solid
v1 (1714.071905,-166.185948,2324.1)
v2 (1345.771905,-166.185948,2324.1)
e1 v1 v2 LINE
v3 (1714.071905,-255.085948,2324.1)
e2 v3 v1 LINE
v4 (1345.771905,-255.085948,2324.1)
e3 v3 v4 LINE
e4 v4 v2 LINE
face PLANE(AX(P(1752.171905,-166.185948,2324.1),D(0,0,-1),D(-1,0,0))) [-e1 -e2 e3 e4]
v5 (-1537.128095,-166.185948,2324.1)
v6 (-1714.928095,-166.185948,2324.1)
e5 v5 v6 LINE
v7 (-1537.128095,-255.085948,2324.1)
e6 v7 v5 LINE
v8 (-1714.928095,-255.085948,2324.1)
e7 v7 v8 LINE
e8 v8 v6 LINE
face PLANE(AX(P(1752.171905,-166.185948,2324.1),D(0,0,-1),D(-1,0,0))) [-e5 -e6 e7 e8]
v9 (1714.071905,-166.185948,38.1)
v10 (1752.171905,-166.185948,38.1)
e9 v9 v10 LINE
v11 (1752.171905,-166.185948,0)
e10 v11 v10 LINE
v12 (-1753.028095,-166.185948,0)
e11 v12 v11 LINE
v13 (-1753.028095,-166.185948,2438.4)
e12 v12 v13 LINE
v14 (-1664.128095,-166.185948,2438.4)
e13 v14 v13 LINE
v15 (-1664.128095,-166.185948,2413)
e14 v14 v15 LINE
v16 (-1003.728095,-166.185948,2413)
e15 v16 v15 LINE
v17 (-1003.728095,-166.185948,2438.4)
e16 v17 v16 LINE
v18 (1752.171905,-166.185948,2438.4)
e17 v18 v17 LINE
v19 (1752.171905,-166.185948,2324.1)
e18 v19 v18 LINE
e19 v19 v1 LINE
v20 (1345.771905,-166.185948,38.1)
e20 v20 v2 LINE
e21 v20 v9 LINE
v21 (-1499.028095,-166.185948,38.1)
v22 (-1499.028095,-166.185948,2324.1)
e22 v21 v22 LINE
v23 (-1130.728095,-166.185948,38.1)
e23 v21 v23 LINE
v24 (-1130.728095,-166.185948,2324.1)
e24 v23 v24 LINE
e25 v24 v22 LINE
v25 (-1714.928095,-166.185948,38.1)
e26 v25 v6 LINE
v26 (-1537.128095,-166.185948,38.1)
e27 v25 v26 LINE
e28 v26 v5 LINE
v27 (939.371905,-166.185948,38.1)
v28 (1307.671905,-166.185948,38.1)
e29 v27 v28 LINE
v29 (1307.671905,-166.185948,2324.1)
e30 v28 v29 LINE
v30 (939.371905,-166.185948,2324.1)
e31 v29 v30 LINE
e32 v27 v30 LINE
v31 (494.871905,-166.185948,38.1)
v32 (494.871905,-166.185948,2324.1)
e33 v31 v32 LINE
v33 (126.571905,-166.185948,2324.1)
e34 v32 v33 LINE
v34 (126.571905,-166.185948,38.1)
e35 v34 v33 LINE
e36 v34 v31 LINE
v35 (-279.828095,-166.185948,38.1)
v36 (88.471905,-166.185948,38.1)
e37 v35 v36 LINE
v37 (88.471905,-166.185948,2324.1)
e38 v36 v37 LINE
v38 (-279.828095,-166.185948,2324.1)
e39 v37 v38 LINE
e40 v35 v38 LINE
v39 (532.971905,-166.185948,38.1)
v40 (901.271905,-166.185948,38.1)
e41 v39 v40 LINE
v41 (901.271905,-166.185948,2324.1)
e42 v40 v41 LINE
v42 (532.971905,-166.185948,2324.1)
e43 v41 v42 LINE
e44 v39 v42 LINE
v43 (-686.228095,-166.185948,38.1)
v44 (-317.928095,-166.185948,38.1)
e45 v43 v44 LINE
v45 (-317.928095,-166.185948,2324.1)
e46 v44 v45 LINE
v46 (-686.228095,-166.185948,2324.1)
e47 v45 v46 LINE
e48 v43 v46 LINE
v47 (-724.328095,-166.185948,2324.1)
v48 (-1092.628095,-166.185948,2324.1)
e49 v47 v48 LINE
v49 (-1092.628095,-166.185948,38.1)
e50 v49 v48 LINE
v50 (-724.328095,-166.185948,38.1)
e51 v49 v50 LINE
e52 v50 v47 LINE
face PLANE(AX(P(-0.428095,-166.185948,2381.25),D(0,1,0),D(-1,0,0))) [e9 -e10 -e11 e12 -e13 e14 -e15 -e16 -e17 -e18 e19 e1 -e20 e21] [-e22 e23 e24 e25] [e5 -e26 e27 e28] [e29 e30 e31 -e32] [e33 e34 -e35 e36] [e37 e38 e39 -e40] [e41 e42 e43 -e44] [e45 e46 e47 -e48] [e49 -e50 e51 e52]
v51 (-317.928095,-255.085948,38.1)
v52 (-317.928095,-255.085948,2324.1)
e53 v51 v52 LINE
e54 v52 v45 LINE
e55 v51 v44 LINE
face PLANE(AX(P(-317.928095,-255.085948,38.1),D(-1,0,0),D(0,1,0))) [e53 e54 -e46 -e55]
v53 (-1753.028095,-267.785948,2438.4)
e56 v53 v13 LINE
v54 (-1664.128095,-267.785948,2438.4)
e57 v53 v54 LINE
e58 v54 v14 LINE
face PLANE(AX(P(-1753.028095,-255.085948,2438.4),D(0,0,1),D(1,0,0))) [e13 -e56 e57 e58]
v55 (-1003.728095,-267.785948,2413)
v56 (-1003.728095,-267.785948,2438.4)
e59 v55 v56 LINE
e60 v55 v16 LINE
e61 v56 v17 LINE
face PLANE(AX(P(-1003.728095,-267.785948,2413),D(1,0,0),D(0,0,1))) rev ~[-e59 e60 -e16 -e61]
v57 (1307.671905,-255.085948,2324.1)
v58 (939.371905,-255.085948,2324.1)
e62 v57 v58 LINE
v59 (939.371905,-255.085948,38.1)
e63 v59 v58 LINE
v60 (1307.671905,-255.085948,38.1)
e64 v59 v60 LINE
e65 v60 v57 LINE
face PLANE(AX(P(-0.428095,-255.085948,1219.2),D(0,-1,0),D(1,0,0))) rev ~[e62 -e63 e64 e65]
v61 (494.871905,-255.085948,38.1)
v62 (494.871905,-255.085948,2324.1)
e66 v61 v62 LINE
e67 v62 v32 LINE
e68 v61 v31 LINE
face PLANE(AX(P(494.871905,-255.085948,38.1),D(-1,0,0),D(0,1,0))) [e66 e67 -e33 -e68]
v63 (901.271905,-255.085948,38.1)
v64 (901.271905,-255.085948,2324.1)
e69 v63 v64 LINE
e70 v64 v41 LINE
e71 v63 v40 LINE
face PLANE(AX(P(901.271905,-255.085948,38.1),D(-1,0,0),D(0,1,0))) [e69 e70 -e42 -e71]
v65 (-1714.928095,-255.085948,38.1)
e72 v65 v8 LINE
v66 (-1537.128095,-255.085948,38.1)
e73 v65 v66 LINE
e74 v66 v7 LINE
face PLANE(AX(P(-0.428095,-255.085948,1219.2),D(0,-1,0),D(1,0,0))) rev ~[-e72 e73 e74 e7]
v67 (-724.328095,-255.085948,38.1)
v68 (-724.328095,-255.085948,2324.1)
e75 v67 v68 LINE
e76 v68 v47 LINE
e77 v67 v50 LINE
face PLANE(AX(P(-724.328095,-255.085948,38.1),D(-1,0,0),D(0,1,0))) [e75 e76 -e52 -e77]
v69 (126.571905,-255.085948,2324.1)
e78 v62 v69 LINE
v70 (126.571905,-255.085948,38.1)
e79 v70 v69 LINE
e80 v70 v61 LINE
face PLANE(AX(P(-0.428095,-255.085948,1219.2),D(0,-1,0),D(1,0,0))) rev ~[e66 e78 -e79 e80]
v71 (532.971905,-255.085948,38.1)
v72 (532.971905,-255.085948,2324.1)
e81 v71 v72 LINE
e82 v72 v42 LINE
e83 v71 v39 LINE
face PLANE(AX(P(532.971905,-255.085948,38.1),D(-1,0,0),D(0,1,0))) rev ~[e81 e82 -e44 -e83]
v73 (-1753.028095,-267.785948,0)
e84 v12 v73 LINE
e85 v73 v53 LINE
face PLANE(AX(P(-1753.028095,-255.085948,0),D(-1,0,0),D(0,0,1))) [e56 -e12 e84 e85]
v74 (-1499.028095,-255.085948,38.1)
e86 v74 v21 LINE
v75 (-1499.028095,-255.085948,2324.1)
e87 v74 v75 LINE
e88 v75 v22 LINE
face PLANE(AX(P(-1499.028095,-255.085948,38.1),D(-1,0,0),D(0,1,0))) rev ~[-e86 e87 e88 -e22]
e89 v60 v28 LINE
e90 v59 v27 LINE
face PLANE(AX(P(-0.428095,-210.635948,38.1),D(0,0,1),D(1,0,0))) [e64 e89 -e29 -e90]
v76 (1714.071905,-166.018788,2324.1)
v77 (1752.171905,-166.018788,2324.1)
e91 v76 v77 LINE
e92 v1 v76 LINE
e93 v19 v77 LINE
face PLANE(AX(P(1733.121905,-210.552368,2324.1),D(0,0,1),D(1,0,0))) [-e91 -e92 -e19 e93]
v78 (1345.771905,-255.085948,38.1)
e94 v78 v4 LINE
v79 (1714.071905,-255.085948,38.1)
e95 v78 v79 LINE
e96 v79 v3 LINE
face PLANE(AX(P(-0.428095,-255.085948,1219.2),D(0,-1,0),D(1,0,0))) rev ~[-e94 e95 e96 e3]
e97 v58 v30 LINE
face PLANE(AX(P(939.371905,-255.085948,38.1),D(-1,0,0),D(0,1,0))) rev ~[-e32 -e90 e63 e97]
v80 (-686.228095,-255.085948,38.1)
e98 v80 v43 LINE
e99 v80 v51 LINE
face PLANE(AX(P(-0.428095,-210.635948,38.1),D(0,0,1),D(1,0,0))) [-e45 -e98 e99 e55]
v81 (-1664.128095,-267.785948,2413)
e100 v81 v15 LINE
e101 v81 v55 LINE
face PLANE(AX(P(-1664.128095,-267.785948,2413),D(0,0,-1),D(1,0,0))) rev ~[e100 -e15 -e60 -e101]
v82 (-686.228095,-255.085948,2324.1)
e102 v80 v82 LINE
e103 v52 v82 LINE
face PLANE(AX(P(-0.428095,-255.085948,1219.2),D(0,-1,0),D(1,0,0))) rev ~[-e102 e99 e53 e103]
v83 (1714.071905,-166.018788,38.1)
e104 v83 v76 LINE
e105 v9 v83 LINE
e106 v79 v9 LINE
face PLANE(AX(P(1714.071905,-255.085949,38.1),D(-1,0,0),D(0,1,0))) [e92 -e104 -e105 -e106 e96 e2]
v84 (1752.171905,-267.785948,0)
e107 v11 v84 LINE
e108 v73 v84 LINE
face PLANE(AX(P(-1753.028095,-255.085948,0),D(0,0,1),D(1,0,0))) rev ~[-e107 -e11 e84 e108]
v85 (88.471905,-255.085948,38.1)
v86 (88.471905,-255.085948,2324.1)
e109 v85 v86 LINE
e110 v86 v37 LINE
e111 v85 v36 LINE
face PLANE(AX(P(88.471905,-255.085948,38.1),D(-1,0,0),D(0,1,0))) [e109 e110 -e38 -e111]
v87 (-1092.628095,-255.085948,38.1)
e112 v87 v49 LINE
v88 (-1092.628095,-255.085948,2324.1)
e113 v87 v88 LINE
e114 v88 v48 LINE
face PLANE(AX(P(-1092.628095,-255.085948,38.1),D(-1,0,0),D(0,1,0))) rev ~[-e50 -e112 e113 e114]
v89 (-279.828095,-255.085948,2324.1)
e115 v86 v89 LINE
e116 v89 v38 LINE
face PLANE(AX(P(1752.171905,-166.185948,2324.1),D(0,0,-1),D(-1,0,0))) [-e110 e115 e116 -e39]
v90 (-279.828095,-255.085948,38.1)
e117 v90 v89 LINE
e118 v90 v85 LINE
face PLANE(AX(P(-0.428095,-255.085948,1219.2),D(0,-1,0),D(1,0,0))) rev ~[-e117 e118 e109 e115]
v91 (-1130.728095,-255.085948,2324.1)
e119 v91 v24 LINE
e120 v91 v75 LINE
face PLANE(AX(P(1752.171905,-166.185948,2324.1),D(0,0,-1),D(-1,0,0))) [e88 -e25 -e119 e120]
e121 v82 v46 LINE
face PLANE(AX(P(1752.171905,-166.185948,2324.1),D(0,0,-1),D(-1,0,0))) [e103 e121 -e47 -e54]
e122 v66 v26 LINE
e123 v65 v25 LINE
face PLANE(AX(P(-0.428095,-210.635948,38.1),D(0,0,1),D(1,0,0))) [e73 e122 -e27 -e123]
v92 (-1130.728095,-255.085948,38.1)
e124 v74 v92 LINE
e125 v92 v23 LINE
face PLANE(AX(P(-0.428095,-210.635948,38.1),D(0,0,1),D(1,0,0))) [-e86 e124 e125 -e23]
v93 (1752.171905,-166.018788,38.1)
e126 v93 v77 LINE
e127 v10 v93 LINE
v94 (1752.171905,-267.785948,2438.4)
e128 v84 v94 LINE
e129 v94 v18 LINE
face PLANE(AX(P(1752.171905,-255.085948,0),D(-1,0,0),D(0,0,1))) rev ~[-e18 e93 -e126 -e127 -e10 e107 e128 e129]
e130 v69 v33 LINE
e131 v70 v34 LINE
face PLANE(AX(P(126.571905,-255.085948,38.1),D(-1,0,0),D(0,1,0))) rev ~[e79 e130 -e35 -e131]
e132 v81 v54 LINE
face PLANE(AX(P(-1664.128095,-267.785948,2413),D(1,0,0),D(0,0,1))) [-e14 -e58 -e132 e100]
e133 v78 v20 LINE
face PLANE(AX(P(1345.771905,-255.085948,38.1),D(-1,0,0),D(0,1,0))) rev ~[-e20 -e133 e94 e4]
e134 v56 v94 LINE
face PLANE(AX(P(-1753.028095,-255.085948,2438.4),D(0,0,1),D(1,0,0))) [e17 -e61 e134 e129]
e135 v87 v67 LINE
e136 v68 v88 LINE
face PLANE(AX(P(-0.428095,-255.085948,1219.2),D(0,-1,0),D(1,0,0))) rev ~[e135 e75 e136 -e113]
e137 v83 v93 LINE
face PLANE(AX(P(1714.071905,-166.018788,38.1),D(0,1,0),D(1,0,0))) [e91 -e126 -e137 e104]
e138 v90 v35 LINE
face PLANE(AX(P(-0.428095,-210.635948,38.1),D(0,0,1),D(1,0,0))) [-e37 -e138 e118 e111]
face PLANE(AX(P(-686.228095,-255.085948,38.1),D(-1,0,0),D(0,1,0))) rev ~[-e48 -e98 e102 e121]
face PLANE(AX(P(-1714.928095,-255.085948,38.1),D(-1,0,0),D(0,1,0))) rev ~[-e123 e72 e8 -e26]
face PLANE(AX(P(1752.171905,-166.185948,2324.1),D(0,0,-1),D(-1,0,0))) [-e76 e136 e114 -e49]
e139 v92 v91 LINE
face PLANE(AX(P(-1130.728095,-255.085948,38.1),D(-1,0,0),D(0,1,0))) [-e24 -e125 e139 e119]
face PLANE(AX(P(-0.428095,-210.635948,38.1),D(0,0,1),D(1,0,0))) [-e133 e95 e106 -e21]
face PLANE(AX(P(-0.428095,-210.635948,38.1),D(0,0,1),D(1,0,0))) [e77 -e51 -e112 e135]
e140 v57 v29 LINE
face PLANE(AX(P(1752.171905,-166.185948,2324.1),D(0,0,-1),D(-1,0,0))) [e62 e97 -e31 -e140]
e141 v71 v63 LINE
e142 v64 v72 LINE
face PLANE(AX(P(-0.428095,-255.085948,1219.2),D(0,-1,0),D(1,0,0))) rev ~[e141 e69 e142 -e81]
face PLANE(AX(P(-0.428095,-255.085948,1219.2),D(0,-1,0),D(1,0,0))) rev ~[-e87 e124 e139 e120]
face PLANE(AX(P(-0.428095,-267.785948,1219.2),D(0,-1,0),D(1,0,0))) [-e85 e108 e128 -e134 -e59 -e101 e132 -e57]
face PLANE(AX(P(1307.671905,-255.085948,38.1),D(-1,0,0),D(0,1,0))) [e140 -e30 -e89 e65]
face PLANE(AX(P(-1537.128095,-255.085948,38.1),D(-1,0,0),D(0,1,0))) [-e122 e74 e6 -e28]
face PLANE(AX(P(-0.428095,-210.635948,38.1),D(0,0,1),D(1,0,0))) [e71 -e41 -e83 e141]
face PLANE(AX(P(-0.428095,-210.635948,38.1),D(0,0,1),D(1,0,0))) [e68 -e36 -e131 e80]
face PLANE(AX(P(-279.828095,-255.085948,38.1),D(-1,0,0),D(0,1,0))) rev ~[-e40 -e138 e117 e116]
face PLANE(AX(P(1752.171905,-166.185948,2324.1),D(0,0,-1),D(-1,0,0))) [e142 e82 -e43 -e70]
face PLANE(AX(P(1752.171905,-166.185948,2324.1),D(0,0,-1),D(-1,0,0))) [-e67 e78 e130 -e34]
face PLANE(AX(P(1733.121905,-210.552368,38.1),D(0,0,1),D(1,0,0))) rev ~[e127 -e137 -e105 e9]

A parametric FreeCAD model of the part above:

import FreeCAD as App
import Part
import Sketcher
from FreeCAD import Vector
Q = App.Units.Quantity


def add_polygon(sketch, points):
    """Adds a closed chain of lines whose ends are joined by coincident constraints."""
    first, n = sketch.GeometryCount, len(points)
    for a, b in zip(points, points[1:] + points[:1]):
        sketch.addGeometry(Part.LineSegment(App.Vector(*a, 0), App.Vector(*b, 0)), False)
    for i in range(n):
        sketch.addConstraint(Sketcher.Constraint("Coincident", first + i, 2, first + (i + 1) % n, 1))

doc = App.newDocument("Part")
body = doc.addObject("PartDesign::Body", "Body")

# Sketch on XY plane
sketch1 = body.newObject("Sketcher::SketchObject", "Sketch")
sketch1.AttachmentSupport = (doc.getObject("XY_Plane"), [""])
sketch1.MapMode = "FlatFace"
add_polygon(sketch1, [(-1753, -166), (-1753, -255), (1752, -255), (1752, -166)])  # lines 0-3
sketch1.addConstraint([
    Sketcher.Constraint("Vertical", 0),
    Sketcher.Constraint("Horizontal", 1),
    Sketcher.Constraint("Vertical", 2),
    Sketcher.Constraint("Horizontal", 3),
    Sketcher.Constraint("DistanceX", 1, 1, 1, 2, Q("138 in")),
    Sketcher.Constraint("DistanceY", 0, 2, 0, 1, Q("3.5 in")),
    Sketcher.Constraint("DistanceY", 0, 2, -1, 1, Q("255.085948 mm")),
    Sketcher.Constraint("DistanceX", 0, 2, -1, 1, Q("1753.028095 mm")),
])
pad1 = body.newObject("PartDesign::Pad", "Pad")
pad1.Profile = sketch1
pad1.Length = Q("1.5 in")

# Sketch on XY plane
sketch2 = body.newObject("Sketcher::SketchObject", "Sketch001")
sketch2.AttachmentSupport = (doc.getObject("XY_Plane"), [""])
sketch2.MapMode = "FlatFace"
sketch2.AttachmentOffset = App.Placement(Vector(0, 0, 1.5 * 25.4), App.Rotation())
add_polygon(sketch2, [(1714, -166), (1714, -255), (1752, -255), (1752, -166)])  # lines 0-3
add_polygon(sketch2, [(1308, -166), (1308, -255), (1346, -255), (1346, -166)])  # lines 4-7
add_polygon(sketch2, [(901, -166), (901, -255), (939, -255), (939, -166)])  # lines 8-11
add_polygon(sketch2, [(495, -166), (495, -255), (533, -255), (533, -166)])  # lines 12-15
add_polygon(sketch2, [(88, -166), (88, -255), (127, -255), (127, -166)])  # lines 16-19
add_polygon(sketch2, [(-318, -166), (-318, -255), (-280, -255), (-280, -166)])  # lines 20-23
add_polygon(sketch2, [(-724, -166), (-724, -255), (-686, -255), (-686, -166)])  # lines 24-27
add_polygon(sketch2, [(-1131, -166), (-1131, -255), (-1093, -255), (-1093, -166)])  # lines 28-31
add_polygon(sketch2, [(-1537, -166), (-1537, -255), (-1499, -255), (-1499, -166)])  # lines 32-35
add_polygon(sketch2, [(-1753, -166), (-1753, -255), (-1715, -255), (-1715, -166)])  # lines 36-39
sketch2.addConstraint([
    Sketcher.Constraint("Vertical", 0),
    Sketcher.Constraint("Horizontal", 1),
    Sketcher.Constraint("Vertical", 2),
    Sketcher.Constraint("Horizontal", 3),
    Sketcher.Constraint("Vertical", 4),
    Sketcher.Constraint("Horizontal", 5),
    Sketcher.Constraint("Vertical", 6),
    Sketcher.Constraint("Horizontal", 7),
    Sketcher.Constraint("Vertical", 8),
    Sketcher.Constraint("Horizontal", 9),
    Sketcher.Constraint("Vertical", 10),
    Sketcher.Constraint("Horizontal", 11),
    Sketcher.Constraint("Vertical", 12),
    Sketcher.Constraint("Horizontal", 13),
    Sketcher.Constraint("Vertical", 14),
    Sketcher.Constraint("Horizontal", 15),
    Sketcher.Constraint("Vertical", 16),
    Sketcher.Constraint("Horizontal", 17),
    Sketcher.Constraint("Vertical", 18),
    Sketcher.Constraint("Horizontal", 19),
    Sketcher.Constraint("Vertical", 20),
    Sketcher.Constraint("Horizontal", 21),
    Sketcher.Constraint("Vertical", 22),
    Sketcher.Constraint("Horizontal", 23),
    Sketcher.Constraint("Vertical", 24),
    Sketcher.Constraint("Horizontal", 25),
    Sketcher.Constraint("Vertical", 26),
    Sketcher.Constraint("Horizontal", 27),
    Sketcher.Constraint("Vertical", 28),
    Sketcher.Constraint("Horizontal", 29),
    Sketcher.Constraint("Vertical", 30),
    Sketcher.Constraint("Horizontal", 31),
    Sketcher.Constraint("Vertical", 32),
    Sketcher.Constraint("Horizontal", 33),
    Sketcher.Constraint("Vertical", 34),
    Sketcher.Constraint("Horizontal", 35),
    Sketcher.Constraint("Vertical", 36),
    Sketcher.Constraint("Horizontal", 37),
    Sketcher.Constraint("Vertical", 38),
    Sketcher.Constraint("Horizontal", 39),
    Sketcher.Constraint("Horizontal", 1, 2, 4, 2),
    Sketcher.Constraint("Horizontal", 5, 2, 8, 2),
    Sketcher.Constraint("Horizontal", 7, 2, 10, 2),
    Sketcher.Constraint("Horizontal", 9, 2, 12, 2),
    Sketcher.Constraint("Horizontal", 11, 2, 14, 2),
    Sketcher.Constraint("Horizontal", 13, 2, 16, 2),
    Sketcher.Constraint("Horizontal", 15, 2, 18, 2),
    Sketcher.Constraint("Horizontal", 17, 2, 20, 2),
    Sketcher.Constraint("Horizontal", 19, 2, 22, 2),
    Sketcher.Constraint("Horizontal", 21, 2, 24, 2),
    Sketcher.Constraint("Horizontal", 23, 2, 26, 2),
    Sketcher.Constraint("Horizontal", 25, 2, 28, 2),
    Sketcher.Constraint("Horizontal", 27, 2, 30, 2),
    Sketcher.Constraint("Horizontal", 29, 2, 32, 2),
    Sketcher.Constraint("Horizontal", 31, 2, 34, 2),
    Sketcher.Constraint("Horizontal", 33, 2, 36, 2),
    Sketcher.Constraint("Horizontal", 35, 2, 38, 2),
    Sketcher.Constraint("Equal", 3, 5),
    Sketcher.Constraint("Equal", 7, 9),
    Sketcher.Constraint("Equal", 11, 13),
    Sketcher.Constraint("Equal", 15, 17),
    Sketcher.Constraint("Equal", 19, 21),
    Sketcher.Constraint("Equal", 23, 25),
    Sketcher.Constraint("Equal", 27, 29),
    Sketcher.Constraint("Equal", 31, 33),
    Sketcher.Constraint("Equal", 35, 37),
    Sketcher.Constraint("DistanceX", 1, 1, 1, 2, Q("1.5 in")),
    Sketcher.Constraint("DistanceY", 4, 2, 4, 1, Q("3.5 in")),
    Sketcher.Constraint("DistanceX", 4, 2, 0, 2, Q("16 in")),
    Sketcher.Constraint("DistanceX", 8, 2, 4, 2, Q("16 in")),
    Sketcher.Constraint("DistanceX", 12, 2, 8, 2, Q("16 in")),
    Sketcher.Constraint("DistanceX", 16, 2, 12, 2, Q("16 in")),
    Sketcher.Constraint("DistanceX", 20, 2, 16, 2, Q("16 in")),
    Sketcher.Constraint("DistanceX", 24, 2, 20, 2, Q("16 in")),
    Sketcher.Constraint("DistanceX", 28, 2, 24, 2, Q("16 in")),
    Sketcher.Constraint("DistanceX", 32, 2, 28, 2, Q("16 in")),
    Sketcher.Constraint("DistanceX", 36, 2, 33, 2, Q("10 in")),
    Sketcher.Constraint("DistanceY", 0, 2, 0, 1, Q("89.067161 mm")),
    Sketcher.Constraint("DistanceY", 0, 2, -1, 1, Q("255.085949 mm")),
    Sketcher.Constraint("DistanceX", -1, 1, 0, 2, Q("1714.071905 mm")),
])
pad2 = body.newObject("PartDesign::Pad", "Pad001")
pad2.Profile = sketch2
pad2.Length = Q("90 in")

# Sketch on XZ plane
sketch3 = body.newObject("Sketcher::SketchObject", "Sketch002")
sketch3.AttachmentSupport = (doc.getObject("XZ_Plane"), [""])
sketch3.MapMode = "FlatFace"
sketch3.AttachmentOffset = App.Placement(Vector(0, 0, 166.185948), App.Rotation())
add_polygon(sketch3, [(1752, 2438), (1752, 2324), (-1753, 2324), (-1753, 2438)])  # lines 0-3
sketch3.addConstraint([
    Sketcher.Constraint("Vertical", 0),
    Sketcher.Constraint("Horizontal", 1),
    Sketcher.Constraint("Vertical", 2),
    Sketcher.Constraint("Horizontal", 3),
    Sketcher.Constraint("DistanceX", 1, 2, 1, 1, Q("138 in")),
    Sketcher.Constraint("DistanceY", 0, 2, 0, 1, Q("4.5 in")),
    Sketcher.Constraint("DistanceY", -1, 1, 2, 2, Q("96 in")),
    Sketcher.Constraint("DistanceX", -1, 1, 0, 2, Q("1752.171905 mm")),
])
pad3 = body.newObject("PartDesign::Pad", "Pad002")
pad3.Profile = sketch3
pad3.Length = Q("3.5 in")

# Sketch on XZ plane
sketch4 = body.newObject("Sketcher::SketchObject", "Sketch003")
sketch4.AttachmentSupport = (doc.getObject("XZ_Plane"), [""])
sketch4.MapMode = "FlatFace"
sketch4.AttachmentOffset = App.Placement(Vector(0, 0, 255.085948), App.Rotation())
add_polygon(sketch4, [(-1753, 2438), (-1753, 0), (1752, 0), (1752, 2438)])  # lines 0-3
sketch4.addConstraint([
    Sketcher.Constraint("Vertical", 0),
    Sketcher.Constraint("Horizontal", 1),
    Sketcher.Constraint("Vertical", 2),
    Sketcher.Constraint("Horizontal", 3),
    Sketcher.Constraint("PointOnObject", 0, 2, -1),
    Sketcher.Constraint("DistanceX", 1, 1, 1, 2, Q("138 in")),
    Sketcher.Constraint("DistanceY", 0, 2, 0, 1, Q("96 in")),
    Sketcher.Constraint("DistanceX", 0, 2, -1, 1, Q("1753.028095 mm")),
])
pad4 = body.newObject("PartDesign::Pad", "Pad003")
pad4.Profile = sketch4
pad4.Length = Q("0.5 in")

# Sketch on XZ plane
sketch5 = body.newObject("Sketcher::SketchObject", "Sketch004")
sketch5.AttachmentSupport = (doc.getObject("XZ_Plane"), [""])
sketch5.MapMode = "FlatFace"
sketch5.AttachmentOffset = App.Placement(Vector(0, 0, 267.785948), App.Rotation())
add_polygon(sketch5, [(-1664, 2438), (-1664, 2413), (-1004, 2413), (-1004, 2438)])  # lines 0-3
sketch5.addConstraint([
    Sketcher.Constraint("Vertical", 0),
    Sketcher.Constraint("Horizontal", 1),
    Sketcher.Constraint("Vertical", 2),
    Sketcher.Constraint("Horizontal", 3),
    Sketcher.Constraint("DistanceX", 1, 1, 1, 2, Q("26 in")),
    Sketcher.Constraint("DistanceY", 0, 2, 0, 1, Q("1 in")),
    Sketcher.Constraint("DistanceY", -1, 1, 0, 2, Q("95 in")),
    Sketcher.Constraint("DistanceX", 0, 2, -1, 1, Q("1664.128095 mm")),
])
pocket1 = body.newObject("PartDesign::Pocket", "Pocket")
pocket1.Profile = sketch5
pocket1.Length = Q("5.2 in")

doc.recompute()
